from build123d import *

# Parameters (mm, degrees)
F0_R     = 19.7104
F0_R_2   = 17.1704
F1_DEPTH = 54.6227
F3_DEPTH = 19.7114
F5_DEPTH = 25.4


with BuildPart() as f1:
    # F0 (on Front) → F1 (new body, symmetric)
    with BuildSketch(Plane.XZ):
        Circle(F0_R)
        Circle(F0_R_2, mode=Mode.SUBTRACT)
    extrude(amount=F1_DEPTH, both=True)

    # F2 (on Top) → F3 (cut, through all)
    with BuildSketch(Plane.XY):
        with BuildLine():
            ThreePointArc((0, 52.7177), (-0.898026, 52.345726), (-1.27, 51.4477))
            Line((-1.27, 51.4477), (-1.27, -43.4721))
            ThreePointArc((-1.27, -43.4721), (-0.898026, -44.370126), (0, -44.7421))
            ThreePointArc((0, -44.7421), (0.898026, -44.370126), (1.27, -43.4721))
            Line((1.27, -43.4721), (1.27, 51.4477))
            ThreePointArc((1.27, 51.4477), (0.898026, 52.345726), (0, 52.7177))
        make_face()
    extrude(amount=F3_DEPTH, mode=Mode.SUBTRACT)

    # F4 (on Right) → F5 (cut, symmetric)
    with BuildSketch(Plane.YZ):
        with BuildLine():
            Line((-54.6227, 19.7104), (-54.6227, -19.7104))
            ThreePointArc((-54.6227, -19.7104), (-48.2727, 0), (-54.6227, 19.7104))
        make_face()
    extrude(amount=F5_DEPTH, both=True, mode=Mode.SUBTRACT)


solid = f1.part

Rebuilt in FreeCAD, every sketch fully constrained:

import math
import FreeCAD as App
import Part
import Sketcher
Q = App.Units.Quantity

doc = App.newDocument("Part")
body = doc.addObject("PartDesign::Body", "Body")

# Sketch on XZ plane
sketch1 = body.newObject("Sketcher::SketchObject", "Sketch")
sketch1.AttachmentSupport = (doc.getObject("XZ_Plane"), [""])
sketch1.MapMode = "FlatFace"
sketch1.addGeometry(Part.Circle(App.Vector(0, 0, 0), App.Vector(0, 0, 1), 19.7104), False)
sketch1.addGeometry(Part.Circle(App.Vector(0, 0, 0), App.Vector(0, 0, 1), 17.1704), False)
sketch1.addConstraint(Sketcher.Constraint("Coincident", 0, 3, -1, 1))
sketch1.addConstraint(Sketcher.Constraint("Coincident", 1, 3, -1, 1))
sketch1.addConstraint(Sketcher.Constraint("Diameter", 0, Q("1.552 in")))
sketch1.addConstraint(Sketcher.Constraint("Diameter", 1, Q("1.352 in")))
pad1 = body.newObject("PartDesign::Pad", "Pad")
pad1.Profile = sketch1
pad1.Length = Q("4.301 in")
pad1.Midplane = True

# Sketch on XY plane
sketch2 = body.newObject("Sketcher::SketchObject", "Sketch001")
sketch2.AttachmentSupport = (doc.getObject("XY_Plane"), [""])
sketch2.MapMode = "FlatFace"
sketch2.addGeometry(Part.ArcOfCircle(Part.Circle(App.Vector(-0.000001, 51.447701, 0), App.Vector(0, 0, 1), 1.269999), math.radians(89.99994), math.radians(180.00006)), False)
sketch2.addGeometry(Part.LineSegment(App.Vector(-1.27, 51.4477, 0), App.Vector(-1.27, -43.4721, 0)), False)
sketch2.addGeometry(Part.ArcOfCircle(Part.Circle(App.Vector(-0.000001, -43.472101, 0), App.Vector(0, 0, 1), 1.269999), math.radians(179.99994), math.radians(270.00006)), False)
sketch2.addGeometry(Part.ArcOfCircle(Part.Circle(App.Vector(0.000001, -43.472101, 0), App.Vector(0, 0, 1), 1.269999), math.radians(-90.00006), math.radians(0.00006)), False)
sketch2.addGeometry(Part.LineSegment(App.Vector(1.27, -43.4721, 0), App.Vector(1.27, 51.4477, 0)), False)
sketch2.addGeometry(Part.ArcOfCircle(Part.Circle(App.Vector(0.000001, 51.447701, 0), App.Vector(0, 0, 1), 1.269999), math.radians(-0.00006), math.radians(90.00006)), False)
sketch2.addConstraint(Sketcher.Constraint("Tangent", 0, 2, 1, 1))
sketch2.addConstraint(Sketcher.Constraint("Tangent", 1, 2, 2, 1))
sketch2.addConstraint(Sketcher.Constraint("Coincident", 2, 2, 3, 1))
sketch2.addConstraint(Sketcher.Constraint("Tangent", 3, 2, 4, 1))
sketch2.addConstraint(Sketcher.Constraint("Tangent", 4, 2, 5, 1))
sketch2.addConstraint(Sketcher.Constraint("Coincident", 5, 2, 0, 1))
sketch2.addConstraint(Sketcher.Constraint("Vertical", 1))
sketch2.addConstraint(Sketcher.Constraint("Vertical", 4))
sketch2.addConstraint(Sketcher.Constraint("Coincident", 3, 3, 2, 3))
sketch2.addConstraint(Sketcher.Constraint("Coincident", 5, 3, 0, 3))
sketch2.addConstraint(Sketcher.Constraint("PointOnObject", 0, 3, -2))
sketch2.addConstraint(Sketcher.Constraint("PointOnObject", 2, 2, -2))
sketch2.addConstraint(Sketcher.Constraint("PointOnObject", 5, 2, -2))
sketch2.addConstraint(Sketcher.Constraint("Radius", 0, Q("0.0499999 in")))
sketch2.addConstraint(Sketcher.Constraint("DistanceY", 1, 2, 1, 1, Q("3.737 in")))
sketch2.addConstraint(Sketcher.Constraint("DistanceY", -1, 1, 0, 3, Q("2.0255001 in")))
pocket1 = body.newObject("PartDesign::Pocket", "Pocket")
pocket1.Profile = sketch2
pocket1.Type = "ThroughAll"
pocket1.Reversed = True

# Sketch on YZ plane
sketch3 = body.newObject("Sketcher::SketchObject", "Sketch002")
sketch3.AttachmentSupport = (doc.getObject("YZ_Plane"), [""])
sketch3.MapMode = "FlatFace"
sketch3.addGeometry(Part.LineSegment(App.Vector(-54.6227, 19.7104, 0), App.Vector(-54.6227, -19.7104, 0)), False)
sketch3.addGeometry(Part.ArcOfCircle(Part.Circle(App.Vector(-82.038241, 0, 0), App.Vector(0, 0, 1), 33.765541), math.radians(-35.714242), math.radians(35.714242)), False)
sketch3.addConstraint(Sketcher.Constraint("Coincident", 0, 1, 1, 2))
sketch3.addConstraint(Sketcher.Constraint("Coincident", 1, 1, 0, 2))
sketch3.addConstraint(Sketcher.Constraint("Vertical", 0))
sketch3.addConstraint(Sketcher.Constraint("PointOnObject", 1, 3, -1))
sketch3.addConstraint(Sketcher.Constraint("DistanceY", 0, 2, 0, 1, Q("1.552 in")))
sketch3.addConstraint(Sketcher.Constraint("Radius", 1, 33.765541))
sketch3.addConstraint(Sketcher.Constraint("DistanceX", 0, 1, -1, 1, Q("2.1505 in")))
pocket2 = body.newObject("PartDesign::Pocket", "Pocket001")
pocket2.Profile = sketch3
pocket2.Length = Q("2 in")
pocket2.Midplane = True

doc.recompute()
